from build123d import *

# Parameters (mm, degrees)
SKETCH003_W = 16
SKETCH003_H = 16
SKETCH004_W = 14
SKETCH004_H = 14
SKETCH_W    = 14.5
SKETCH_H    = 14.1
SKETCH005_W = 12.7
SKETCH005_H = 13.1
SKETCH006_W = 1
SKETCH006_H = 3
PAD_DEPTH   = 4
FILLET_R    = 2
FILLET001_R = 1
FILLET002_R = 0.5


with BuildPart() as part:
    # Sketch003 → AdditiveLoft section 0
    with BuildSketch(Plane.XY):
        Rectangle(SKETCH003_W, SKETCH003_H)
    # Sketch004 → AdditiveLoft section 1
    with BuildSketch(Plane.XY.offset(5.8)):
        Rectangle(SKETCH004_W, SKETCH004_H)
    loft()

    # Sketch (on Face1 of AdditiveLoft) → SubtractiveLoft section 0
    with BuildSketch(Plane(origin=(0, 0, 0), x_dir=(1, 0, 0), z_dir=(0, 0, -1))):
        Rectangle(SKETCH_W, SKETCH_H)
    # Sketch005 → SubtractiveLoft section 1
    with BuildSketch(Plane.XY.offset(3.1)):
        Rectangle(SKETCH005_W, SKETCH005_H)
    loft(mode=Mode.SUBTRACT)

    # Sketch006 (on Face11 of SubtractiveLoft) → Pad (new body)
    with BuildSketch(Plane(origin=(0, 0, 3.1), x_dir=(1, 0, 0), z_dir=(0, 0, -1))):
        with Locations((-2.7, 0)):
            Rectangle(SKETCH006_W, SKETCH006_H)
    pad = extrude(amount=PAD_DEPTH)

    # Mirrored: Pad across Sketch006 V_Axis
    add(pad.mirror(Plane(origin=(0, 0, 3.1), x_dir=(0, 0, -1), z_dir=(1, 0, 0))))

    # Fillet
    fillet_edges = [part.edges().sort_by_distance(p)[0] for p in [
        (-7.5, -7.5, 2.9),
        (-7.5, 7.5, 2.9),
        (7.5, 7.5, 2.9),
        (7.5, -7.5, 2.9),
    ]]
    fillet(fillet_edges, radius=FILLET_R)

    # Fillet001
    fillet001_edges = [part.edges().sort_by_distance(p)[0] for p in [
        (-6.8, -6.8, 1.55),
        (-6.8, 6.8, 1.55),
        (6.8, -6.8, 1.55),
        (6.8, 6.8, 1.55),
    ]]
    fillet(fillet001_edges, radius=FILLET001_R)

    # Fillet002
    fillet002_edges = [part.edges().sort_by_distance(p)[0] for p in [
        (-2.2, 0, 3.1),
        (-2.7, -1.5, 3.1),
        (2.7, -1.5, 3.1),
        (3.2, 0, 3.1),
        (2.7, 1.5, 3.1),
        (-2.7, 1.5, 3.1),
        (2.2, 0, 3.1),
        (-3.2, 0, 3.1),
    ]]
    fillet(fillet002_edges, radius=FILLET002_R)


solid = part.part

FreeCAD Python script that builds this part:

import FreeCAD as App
import Part
import Sketcher


def edges_at(feature, points):
    """Names of the edges that pass closest to the given points."""
    edges = feature.Shape.Edges
    near = lambda p: min(range(len(edges)), key=lambda i: edges[i].distToShape(Part.Vertex(*p))[0])
    return sorted({f"Edge{near(p) + 1}" for p in points})


def add_polygon(sketch, points):
    """Adds a closed chain of lines whose ends are joined by coincident constraints."""
    first, n = sketch.GeometryCount, len(points)
    for a, b in zip(points, points[1:] + points[:1]):
        sketch.addGeometry(Part.LineSegment(App.Vector(*a, 0), App.Vector(*b, 0)), False)
    for i in range(n):
        sketch.addConstraint(Sketcher.Constraint("Coincident", first + i, 2, first + (i + 1) % n, 1))

doc = App.newDocument("Part")
body = doc.addObject("PartDesign::Body", "Body")

sketch1 = body.newObject("Sketcher::SketchObject", "Sketch")
sketch1.AttachmentSupport = (doc.getObject("XY_Plane"), [""])
sketch1.MapMode = "FlatFace"
add_polygon(sketch1, [(-8, 8), (-8, -8), (8, -8), (8, 8)])
sketch1.addConstraint(Sketcher.Constraint("Vertical", 0))
sketch1.addConstraint(Sketcher.Constraint("Horizontal", 1))
sketch1.addConstraint(Sketcher.Constraint("Vertical", 2))
sketch1.addConstraint(Sketcher.Constraint("Horizontal", 3))
sketch1.addConstraint(Sketcher.Constraint("Symmetric", 0, 2, 2, 2, -1, 1))
sketch1.addConstraint(Sketcher.Constraint("Equal", 3, 0))
sketch1.addConstraint(Sketcher.Constraint("DistanceX", 1, 1, 1, 2, 16.0))

sketch2 = body.newObject("Sketcher::SketchObject", "Sketch001")
sketch2.AttachmentSupport = (doc.getObject("XY_Plane"), [""])
sketch2.MapMode = "FlatFace"
sketch2.AttachmentOffset = App.Placement(App.Vector(0, 0, 5.8), App.Rotation())
add_polygon(sketch2, [(-7, 7), (-7, -7), (7, -7), (7, 7)])
sketch2.addConstraint(Sketcher.Constraint("Vertical", 0))
sketch2.addConstraint(Sketcher.Constraint("Horizontal", 1))
sketch2.addConstraint(Sketcher.Constraint("Vertical", 2))
sketch2.addConstraint(Sketcher.Constraint("Horizontal", 3))
sketch2.addConstraint(Sketcher.Constraint("Symmetric", 0, 2, 2, 2, -1, 1))
sketch2.addConstraint(Sketcher.Constraint("Equal", 3, 0))
sketch2.addConstraint(Sketcher.Constraint("DistanceX", 1, 1, 1, 2, 14.0))

additiveloft = body.newObject("PartDesign::AdditiveLoft", "AdditiveLoft")
additiveloft.Profile = sketch1
additiveloft.Sections = [sketch2]

sketch3 = body.newObject("Sketcher::SketchObject", "Sketch002")
sketch3.AttachmentSupport = (doc.getObject("XY_Plane"), [""])
sketch3.MapMode = "FlatFace"
add_polygon(sketch3, [(-7.25, -7.05), (-7.25, 7.05), (7.25, 7.05), (7.25, -7.05)])
sketch3.addConstraint(Sketcher.Constraint("Vertical", 0))
sketch3.addConstraint(Sketcher.Constraint("Horizontal", 1))
sketch3.addConstraint(Sketcher.Constraint("Vertical", 2))
sketch3.addConstraint(Sketcher.Constraint("Horizontal", 3))
sketch3.addConstraint(Sketcher.Constraint("Symmetric", 0, 2, 2, 2, -1, 1))
sketch3.addConstraint(Sketcher.Constraint("DistanceX", 1, 1, 1, 2, 14.5))
sketch3.addConstraint(Sketcher.Constraint("DistanceY", 0, 1, 0, 2, 14.1))

sketch4 = body.newObject("Sketcher::SketchObject", "Sketch003")
sketch4.AttachmentSupport = (doc.getObject("XY_Plane"), [""])
sketch4.MapMode = "FlatFace"
sketch4.AttachmentOffset = App.Placement(App.Vector(0, 0, 3.1), App.Rotation())
add_polygon(sketch4, [(-6.35, 6.55), (-6.35, -6.55), (6.35, -6.55), (6.35, 6.55)])
sketch4.addConstraint(Sketcher.Constraint("Vertical", 0))
sketch4.addConstraint(Sketcher.Constraint("Horizontal", 1))
sketch4.addConstraint(Sketcher.Constraint("Vertical", 2))
sketch4.addConstraint(Sketcher.Constraint("Horizontal", 3))
sketch4.addConstraint(Sketcher.Constraint("Symmetric", 0, 2, 2, 2, -1, 1))
sketch4.addConstraint(Sketcher.Constraint("DistanceX", 1, 1, 1, 2, 12.7))
sketch4.addConstraint(Sketcher.Constraint("DistanceY", 0, 2, 0, 1, 13.1))

subtractiveloft = body.newObject("PartDesign::SubtractiveLoft", "SubtractiveLoft")
subtractiveloft.Profile = sketch3
subtractiveloft.Sections = [sketch4]

sketch5 = body.newObject("Sketcher::SketchObject", "Sketch004")
sketch5.AttachmentSupport = (doc.getObject("XY_Plane"), [""])
sketch5.MapMode = "FlatFace"
sketch5.AttachmentOffset = App.Placement(App.Vector(0, 0, 3.1), App.Rotation())
add_polygon(sketch5, [(-3.2, -1.5), (-3.2, 1.5), (-2.2, 1.5), (-2.2, -1.5)])
sketch5.addConstraint(Sketcher.Constraint("Vertical", 0))
sketch5.addConstraint(Sketcher.Constraint("Horizontal", 1))
sketch5.addConstraint(Sketcher.Constraint("Vertical", 2))
sketch5.addConstraint(Sketcher.Constraint("Horizontal", 3))
sketch5.addConstraint(Sketcher.Constraint("DistanceX", 1, 1, 1, 2, 1.0))
sketch5.addConstraint(Sketcher.Constraint("DistanceY", 0, 1, 0, 2, 3.0))
sketch5.addConstraint(Sketcher.Constraint("DistanceX", 0, 2, -1, 1, 3.2))
sketch5.addConstraint(Sketcher.Constraint("DistanceY", -1, 1, 0, 2, 1.5))
pad1 = body.newObject("PartDesign::Pad", "Pad")
pad1.Profile = sketch5
pad1.Length = 4
pad1.Reversed = True
doc.recompute()

mirrored = body.newObject("PartDesign::Mirrored", "Mirrored")
mirrored.Originals = [pad1]
mirrored.MirrorPlane = (doc.getObject("YZ_Plane"), [""])
body.Tip = mirrored
doc.recompute()

fillet = body.newObject("PartDesign::Fillet", "Fillet")
fillet.Base = (mirrored, edges_at(mirrored, [
    (-7.5, -7.5, 2.9),
    (-7.5, 7.5, 2.9),
    (7.5, 7.5, 2.9),
    (7.5, -7.5, 2.9),
]))
fillet.Radius = 2
doc.recompute()

fillet2 = body.newObject("PartDesign::Fillet", "Fillet001")
fillet2.Base = (fillet, edges_at(fillet, [
    (-6.8, -6.8, 1.55),
    (-6.8, 6.8, 1.55),
    (6.8, -6.8, 1.55),
    (6.8, 6.8, 1.55),
]))
fillet2.Radius = 1
doc.recompute()

fillet3 = body.newObject("PartDesign::Fillet", "Fillet002")
fillet3.Base = (fillet2, edges_at(fillet2, [
    (-2.2, 0, 3.1),
    (-2.7, -1.5, 3.1),
    (2.7, -1.5, 3.1),
    (3.2, 0, 3.1),
    (2.7, 1.5, 3.1),
    (-2.7, 1.5, 3.1),
    (2.2, 0, 3.1),
    (-3.2, 0, 3.1),
]))
fillet3.Radius = 0.5

doc.recompute()
